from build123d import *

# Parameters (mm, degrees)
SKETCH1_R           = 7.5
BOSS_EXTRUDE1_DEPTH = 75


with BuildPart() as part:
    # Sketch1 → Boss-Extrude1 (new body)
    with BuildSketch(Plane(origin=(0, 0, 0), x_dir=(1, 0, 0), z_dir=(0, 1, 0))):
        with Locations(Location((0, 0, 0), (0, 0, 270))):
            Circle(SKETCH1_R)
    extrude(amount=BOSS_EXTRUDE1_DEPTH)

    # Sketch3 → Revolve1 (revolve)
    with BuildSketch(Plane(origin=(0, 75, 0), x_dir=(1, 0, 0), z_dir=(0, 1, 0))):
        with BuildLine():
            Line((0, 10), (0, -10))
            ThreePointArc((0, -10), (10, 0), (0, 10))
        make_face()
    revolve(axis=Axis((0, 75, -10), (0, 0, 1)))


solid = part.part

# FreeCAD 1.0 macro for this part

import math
import FreeCAD as App
import Part
import Sketcher
from FreeCAD import Vector

doc = App.newDocument("Part")
body = doc.addObject("PartDesign::Body", "Body")

# Sketch on XZ plane
sketch1 = doc.addObject("Sketcher::SketchObject", "Sketch")
body.addObject(sketch1)
sketch1.AttachmentSupport = (doc.XZ_Plane, [""])
sketch1.MapMode = "FlatFace"
sketch1.addGeometry(Part.Circle(Vector(0, 0, 0), Vector(0, 0, 1), 8), False)
sketch1.addConstraint([
    Sketcher.Constraint("Coincident", 0, 3, -1, 1),
    Sketcher.Constraint("Diameter", 0, 15.0),
])
pad1 = doc.addObject("PartDesign::Pad", "Pad")
body.addObject(pad1)
pad1.Profile = sketch1
pad1.Length = 75
pad1.Reversed = True

# Sketch on XZ plane
sketch2 = doc.addObject("Sketcher::SketchObject", "Sketch001")
body.addObject(sketch2)
sketch2.AttachmentSupport = (doc.XZ_Plane, [""])
sketch2.MapMode = "FlatFace"
sketch2.AttachmentOffset = App.Placement(Vector(0, 0, -75), App.Rotation())
sketch2.addGeometry([
    Part.LineSegment(Vector(0, -10, 0), Vector(0, 10, 0)),
    Part.ArcOfCircle(Part.Circle(Vector(0, 0, 0), Vector(0, 0, 1), 10), math.radians(-90), math.radians(90)),
], False)
sketch2.addConstraint([
    Sketcher.Constraint("Coincident", 0, 1, 1, 1),
    Sketcher.Constraint("Coincident", 1, 2, 0, 2),
    Sketcher.Constraint("Vertical", 0),
    Sketcher.Constraint("Coincident", 1, 3, -1, 1),
    Sketcher.Constraint("PointOnObject", 0, 1, -2),
    Sketcher.Constraint("Radius", 1, 10.0),
])
revolution = doc.addObject("PartDesign::Revolution", "Revolution")
body.addObject(revolution)
revolution.Profile = sketch2
revolution.ReferenceAxis = (sketch2, ["V_Axis"])
revolution.Angle = 360

doc.recompute()
